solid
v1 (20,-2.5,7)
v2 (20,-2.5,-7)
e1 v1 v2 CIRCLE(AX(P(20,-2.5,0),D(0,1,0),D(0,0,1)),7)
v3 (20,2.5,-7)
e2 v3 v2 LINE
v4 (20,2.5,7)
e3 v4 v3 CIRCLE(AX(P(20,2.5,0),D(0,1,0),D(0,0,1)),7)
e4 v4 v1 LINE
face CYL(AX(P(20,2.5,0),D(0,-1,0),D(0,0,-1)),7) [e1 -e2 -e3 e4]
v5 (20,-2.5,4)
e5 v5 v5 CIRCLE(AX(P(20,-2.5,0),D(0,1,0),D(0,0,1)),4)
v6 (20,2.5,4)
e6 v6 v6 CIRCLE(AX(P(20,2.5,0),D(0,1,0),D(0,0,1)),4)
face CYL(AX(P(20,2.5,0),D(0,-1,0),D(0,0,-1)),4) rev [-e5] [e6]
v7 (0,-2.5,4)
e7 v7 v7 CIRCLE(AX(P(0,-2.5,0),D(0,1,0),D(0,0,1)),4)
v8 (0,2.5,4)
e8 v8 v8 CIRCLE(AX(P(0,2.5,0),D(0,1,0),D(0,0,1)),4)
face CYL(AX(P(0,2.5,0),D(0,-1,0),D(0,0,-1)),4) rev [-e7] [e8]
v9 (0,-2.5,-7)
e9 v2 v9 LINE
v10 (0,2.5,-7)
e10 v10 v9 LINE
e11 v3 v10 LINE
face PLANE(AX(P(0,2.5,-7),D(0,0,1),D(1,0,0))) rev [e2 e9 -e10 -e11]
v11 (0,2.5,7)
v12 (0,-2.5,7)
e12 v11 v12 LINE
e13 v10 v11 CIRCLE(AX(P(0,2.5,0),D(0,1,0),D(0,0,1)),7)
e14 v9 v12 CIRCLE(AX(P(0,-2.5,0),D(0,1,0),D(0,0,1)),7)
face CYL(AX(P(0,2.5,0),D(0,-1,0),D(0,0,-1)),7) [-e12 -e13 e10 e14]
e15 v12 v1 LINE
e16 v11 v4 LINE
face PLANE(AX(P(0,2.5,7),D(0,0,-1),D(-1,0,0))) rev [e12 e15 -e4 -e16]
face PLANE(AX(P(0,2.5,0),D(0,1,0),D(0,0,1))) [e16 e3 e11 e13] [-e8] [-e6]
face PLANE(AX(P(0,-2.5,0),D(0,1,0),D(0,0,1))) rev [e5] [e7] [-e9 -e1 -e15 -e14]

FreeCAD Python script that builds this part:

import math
import FreeCAD as App
import Part
import Sketcher
from FreeCAD import Vector

doc = App.newDocument("Part")
body = doc.addObject("PartDesign::Body", "Body")

# Sketch on XZ plane
sketch1 = doc.addObject("Sketcher::SketchObject", "Sketch")
body.addObject(sketch1)
sketch1.AttachmentSupport = (doc.XZ_Plane, [""])
sketch1.MapMode = "FlatFace"
sketch1.addGeometry([
    Part.LineSegment(Vector(20, -7, 0), Vector(0, -7, 0)),  # 0
    Part.ArcOfCircle(Part.Circle(Vector(0, 0, 0), Vector(0, 0, 1), 7), math.radians(90), math.radians(270)),  # 1
    Part.LineSegment(Vector(0, 7, 0), Vector(20, 7, 0)),  # 2
    Part.ArcOfCircle(Part.Circle(Vector(20, 0, 0), Vector(0, 0, 1), 7), math.radians(-90), math.radians(90)),  # 3
    Part.Circle(Vector(20, 0, 0), Vector(0, 0, 1), 4),  # 4
    Part.Circle(Vector(0, 0, 0), Vector(0, 0, 1), 4),  # 5
], False)
sketch1.addConstraint([
    Sketcher.Constraint("Tangent", 0, 2, 1, 2),
    Sketcher.Constraint("Tangent", 1, 1, 2, 1),
    Sketcher.Constraint("Tangent", 2, 2, 3, 2),
    Sketcher.Constraint("Tangent", 3, 1, 0, 1),
    Sketcher.Constraint("Horizontal", 0),
    Sketcher.Constraint("Horizontal", 2),
    Sketcher.Constraint("Coincident", 1, 3, -1, 1),
    Sketcher.Constraint("Coincident", 5, 3, -1, 1),
    Sketcher.Constraint("Coincident", 4, 3, 3, 3),
    Sketcher.Constraint("Equal", 4, 5),
    Sketcher.Constraint("Diameter", 4, 8.0),
    Sketcher.Constraint("Radius", 1, 7.0),
    Sketcher.Constraint("DistanceX", 0, 2, 0, 1, 20.0),
])
pad1 = doc.addObject("PartDesign::Pad", "Pad")
body.addObject(pad1)
pad1.Profile = sketch1
pad1.Length = 5
pad1.Midplane = True

doc.recompute()
